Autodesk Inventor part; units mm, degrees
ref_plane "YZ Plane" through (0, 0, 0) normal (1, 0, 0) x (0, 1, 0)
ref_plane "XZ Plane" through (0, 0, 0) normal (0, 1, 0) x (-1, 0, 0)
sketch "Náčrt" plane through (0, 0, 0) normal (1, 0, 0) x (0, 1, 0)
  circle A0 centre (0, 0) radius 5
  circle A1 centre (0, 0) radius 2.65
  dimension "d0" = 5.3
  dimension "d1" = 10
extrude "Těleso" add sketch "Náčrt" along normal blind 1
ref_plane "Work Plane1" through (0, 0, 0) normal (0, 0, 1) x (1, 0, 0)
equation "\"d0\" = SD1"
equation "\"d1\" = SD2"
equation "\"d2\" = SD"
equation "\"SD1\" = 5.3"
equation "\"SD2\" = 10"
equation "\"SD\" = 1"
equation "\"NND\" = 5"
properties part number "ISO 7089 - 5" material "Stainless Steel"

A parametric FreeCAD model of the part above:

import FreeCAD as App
import Part
import Sketcher

V = App.Vector

doc = App.newDocument("Part")
params = doc.addObject("Spreadsheet::Sheet", "Params")
for row, (alias, value) in enumerate([
    ("sketch1_diameter", "10 mm"),
    ("sketch1_diameter2", "5.3 mm"),
    ("pad1_length", "1 mm"),
], start=1):
    params.set(f"A{row}", alias)
    params.set(f"B{row}", "=" + value)
    params.setAlias(f"B{row}", alias)

body = doc.addObject("PartDesign::Body", "Body")

sketch1 = body.newObject("Sketcher::SketchObject", "Sketch")
sketch1.AttachmentSupport = (doc.getObject("YZ_Plane"), [""])
sketch1.MapMode = "FlatFace"
sketch1.addGeometry([
    Part.Circle(V(0, 0, 0), V(0, 0, 1), 5),
    Part.Circle(V(0, 0, 0), V(0, 0, 1), 2.65),
], False)
sketch1.addConstraint([
    Sketcher.Constraint("Coincident", 0, 3, -1, 1),
    Sketcher.Constraint("Coincident", 1, 3, -1, 1),
    Sketcher.Constraint("Diameter", 0, 10.0),
    Sketcher.Constraint("Diameter", 1, 5.3),
])
sketch1.setExpression("Constraints[2]", "Params.sketch1_diameter")
sketch1.setExpression("Constraints[3]", "Params.sketch1_diameter2")
pad1 = body.newObject("PartDesign::Pad", "Pad")
pad1.Profile = sketch1
pad1.setExpression("Length", "Params.pad1_length")

doc.recompute()
